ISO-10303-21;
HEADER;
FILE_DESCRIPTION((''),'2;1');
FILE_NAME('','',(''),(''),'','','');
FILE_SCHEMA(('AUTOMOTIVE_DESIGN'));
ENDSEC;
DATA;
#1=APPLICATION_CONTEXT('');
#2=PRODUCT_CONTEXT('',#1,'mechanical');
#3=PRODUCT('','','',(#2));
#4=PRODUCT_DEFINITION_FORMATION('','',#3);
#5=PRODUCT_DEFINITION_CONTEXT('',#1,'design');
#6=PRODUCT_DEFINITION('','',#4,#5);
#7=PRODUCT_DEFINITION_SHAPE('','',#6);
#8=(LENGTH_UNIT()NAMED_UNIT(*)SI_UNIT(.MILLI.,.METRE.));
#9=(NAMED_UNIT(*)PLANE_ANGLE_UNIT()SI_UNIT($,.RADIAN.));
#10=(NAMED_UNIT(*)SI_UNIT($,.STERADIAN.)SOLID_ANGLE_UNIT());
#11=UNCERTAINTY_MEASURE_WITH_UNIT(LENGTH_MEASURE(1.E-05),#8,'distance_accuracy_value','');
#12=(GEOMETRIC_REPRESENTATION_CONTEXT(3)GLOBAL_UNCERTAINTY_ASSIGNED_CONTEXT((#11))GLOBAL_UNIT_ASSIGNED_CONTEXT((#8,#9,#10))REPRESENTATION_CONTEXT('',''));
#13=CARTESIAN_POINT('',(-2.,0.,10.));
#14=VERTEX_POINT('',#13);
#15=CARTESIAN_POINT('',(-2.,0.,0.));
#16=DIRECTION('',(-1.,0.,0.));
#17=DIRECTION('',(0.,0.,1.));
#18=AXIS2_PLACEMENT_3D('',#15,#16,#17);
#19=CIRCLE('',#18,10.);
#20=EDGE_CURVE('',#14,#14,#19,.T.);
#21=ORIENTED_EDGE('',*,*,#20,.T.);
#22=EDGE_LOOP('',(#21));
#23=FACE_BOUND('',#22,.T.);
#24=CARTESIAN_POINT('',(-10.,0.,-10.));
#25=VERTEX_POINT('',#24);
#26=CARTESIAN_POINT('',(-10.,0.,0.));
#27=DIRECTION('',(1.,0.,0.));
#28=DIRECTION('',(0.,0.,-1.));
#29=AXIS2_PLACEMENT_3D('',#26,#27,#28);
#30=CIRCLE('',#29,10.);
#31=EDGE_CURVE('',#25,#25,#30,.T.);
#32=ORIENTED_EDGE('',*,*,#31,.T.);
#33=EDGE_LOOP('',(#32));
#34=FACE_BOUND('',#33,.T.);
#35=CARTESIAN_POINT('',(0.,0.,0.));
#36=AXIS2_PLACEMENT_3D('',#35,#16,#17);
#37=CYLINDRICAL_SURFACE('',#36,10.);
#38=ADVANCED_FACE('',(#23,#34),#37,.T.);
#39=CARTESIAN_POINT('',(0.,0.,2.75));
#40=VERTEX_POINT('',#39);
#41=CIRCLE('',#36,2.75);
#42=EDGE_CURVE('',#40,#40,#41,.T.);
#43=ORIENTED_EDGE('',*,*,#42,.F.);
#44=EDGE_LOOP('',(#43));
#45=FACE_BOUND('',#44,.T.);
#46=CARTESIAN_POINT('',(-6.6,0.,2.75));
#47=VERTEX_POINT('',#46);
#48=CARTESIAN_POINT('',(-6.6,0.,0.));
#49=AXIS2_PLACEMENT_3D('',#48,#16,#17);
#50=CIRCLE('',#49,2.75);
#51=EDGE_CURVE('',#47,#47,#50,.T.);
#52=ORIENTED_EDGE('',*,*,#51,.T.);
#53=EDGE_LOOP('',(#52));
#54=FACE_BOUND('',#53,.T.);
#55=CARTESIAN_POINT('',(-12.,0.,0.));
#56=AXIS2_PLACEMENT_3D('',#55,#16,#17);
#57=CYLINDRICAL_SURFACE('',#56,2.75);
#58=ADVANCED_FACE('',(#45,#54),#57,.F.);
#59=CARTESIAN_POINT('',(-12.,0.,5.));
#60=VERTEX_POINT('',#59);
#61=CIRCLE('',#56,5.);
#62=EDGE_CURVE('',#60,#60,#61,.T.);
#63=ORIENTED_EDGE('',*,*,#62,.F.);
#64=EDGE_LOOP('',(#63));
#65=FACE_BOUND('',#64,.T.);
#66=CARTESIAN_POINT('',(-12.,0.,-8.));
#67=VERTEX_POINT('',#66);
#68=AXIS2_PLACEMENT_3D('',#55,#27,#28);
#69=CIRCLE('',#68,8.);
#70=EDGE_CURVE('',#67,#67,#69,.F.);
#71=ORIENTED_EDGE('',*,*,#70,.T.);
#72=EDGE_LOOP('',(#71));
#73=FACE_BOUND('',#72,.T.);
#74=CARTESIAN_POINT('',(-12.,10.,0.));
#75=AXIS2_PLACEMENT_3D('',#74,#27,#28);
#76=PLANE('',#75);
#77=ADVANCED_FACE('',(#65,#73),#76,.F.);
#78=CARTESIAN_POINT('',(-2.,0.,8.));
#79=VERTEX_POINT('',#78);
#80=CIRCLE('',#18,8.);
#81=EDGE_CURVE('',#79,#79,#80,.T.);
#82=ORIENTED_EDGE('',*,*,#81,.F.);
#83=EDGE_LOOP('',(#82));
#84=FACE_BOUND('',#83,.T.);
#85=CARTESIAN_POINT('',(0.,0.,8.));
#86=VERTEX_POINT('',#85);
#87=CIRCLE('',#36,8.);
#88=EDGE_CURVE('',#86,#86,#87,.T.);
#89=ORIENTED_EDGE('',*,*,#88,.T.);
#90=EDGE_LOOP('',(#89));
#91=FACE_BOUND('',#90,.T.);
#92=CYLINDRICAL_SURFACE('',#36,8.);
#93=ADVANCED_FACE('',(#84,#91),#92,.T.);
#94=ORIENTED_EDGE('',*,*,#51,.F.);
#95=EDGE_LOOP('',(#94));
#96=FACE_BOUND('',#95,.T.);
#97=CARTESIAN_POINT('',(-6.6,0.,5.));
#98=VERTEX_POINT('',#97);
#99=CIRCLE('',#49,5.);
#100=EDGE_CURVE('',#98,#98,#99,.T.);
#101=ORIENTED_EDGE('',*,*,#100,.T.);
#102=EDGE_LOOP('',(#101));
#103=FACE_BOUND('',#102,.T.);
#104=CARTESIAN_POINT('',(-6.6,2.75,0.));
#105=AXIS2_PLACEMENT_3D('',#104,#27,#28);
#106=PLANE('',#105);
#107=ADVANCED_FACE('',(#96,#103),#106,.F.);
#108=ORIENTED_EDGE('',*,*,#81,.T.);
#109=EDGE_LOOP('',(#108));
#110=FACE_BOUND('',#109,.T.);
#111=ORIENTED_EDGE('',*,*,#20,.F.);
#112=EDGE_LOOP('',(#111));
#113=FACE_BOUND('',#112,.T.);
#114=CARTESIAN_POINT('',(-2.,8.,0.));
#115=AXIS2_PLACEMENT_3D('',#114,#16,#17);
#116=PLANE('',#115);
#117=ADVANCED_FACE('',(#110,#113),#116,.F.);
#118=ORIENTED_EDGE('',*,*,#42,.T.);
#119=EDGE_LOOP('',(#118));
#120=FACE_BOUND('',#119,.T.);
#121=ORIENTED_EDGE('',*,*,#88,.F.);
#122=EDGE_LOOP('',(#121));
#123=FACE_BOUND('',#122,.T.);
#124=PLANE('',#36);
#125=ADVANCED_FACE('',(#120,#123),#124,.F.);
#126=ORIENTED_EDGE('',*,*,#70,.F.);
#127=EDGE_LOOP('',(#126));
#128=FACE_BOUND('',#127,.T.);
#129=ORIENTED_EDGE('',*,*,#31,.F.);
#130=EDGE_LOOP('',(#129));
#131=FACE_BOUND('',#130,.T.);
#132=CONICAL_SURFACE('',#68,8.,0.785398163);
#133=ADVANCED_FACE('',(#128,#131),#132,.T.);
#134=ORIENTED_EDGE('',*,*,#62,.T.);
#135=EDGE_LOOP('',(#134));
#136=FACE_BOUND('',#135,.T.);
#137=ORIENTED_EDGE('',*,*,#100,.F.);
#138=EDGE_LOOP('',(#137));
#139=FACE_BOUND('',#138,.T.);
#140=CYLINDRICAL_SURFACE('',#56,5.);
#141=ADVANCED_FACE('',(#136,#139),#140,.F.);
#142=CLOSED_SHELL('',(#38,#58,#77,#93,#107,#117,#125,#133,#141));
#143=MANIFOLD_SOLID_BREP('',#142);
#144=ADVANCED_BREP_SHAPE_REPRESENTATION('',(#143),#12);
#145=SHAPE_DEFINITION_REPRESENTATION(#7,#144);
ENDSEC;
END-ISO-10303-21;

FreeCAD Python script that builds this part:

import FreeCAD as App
import Part
import Sketcher
from FreeCAD import Vector
Q = App.Units.Quantity


def edges_at(feature, points):
    """Names of the edges that pass closest to the given points."""
    edges = feature.Shape.Edges
    near = lambda p: min(range(len(edges)), key=lambda i: edges[i].distToShape(Part.Vertex(*p))[0])
    return sorted({f"Edge{near(p) + 1}" for p in points})


def add_polygon(sketch, points):
    """Adds a closed chain of lines whose ends are joined by coincident constraints."""
    first, n = sketch.GeometryCount, len(points)
    for a, b in zip(points, points[1:] + points[:1]):
        sketch.addGeometry(Part.LineSegment(App.Vector(*a, 0), App.Vector(*b, 0)), False)
    for i in range(n):
        sketch.addConstraint(Sketcher.Constraint("Coincident", first + i, 2, first + (i + 1) % n, 1))

doc = App.newDocument("Part")
body = doc.addObject("PartDesign::Body", "Body")

sketch1 = body.newObject("Sketcher::SketchObject", "Sketch")
sketch1.AttachmentSupport = (doc.getObject("XY_Plane"), [""])
sketch1.MapMode = "FlatFace"
add_polygon(sketch1, [(0, 0), (0, 8), (-2, 8), (-2, 10), (-12, 10), (-12, 0)])
sketch1.addConstraint([
    Sketcher.Constraint("Vertical", 0),
    Sketcher.Constraint("Horizontal", 1),
    Sketcher.Constraint("Vertical", 2),
    Sketcher.Constraint("Horizontal", 3),
    Sketcher.Constraint("Vertical", 4),
    Sketcher.Constraint("Horizontal", 5),
    Sketcher.Constraint("Coincident", 5, 2, -1, 1),
    Sketcher.Constraint("Equal", 1, 2),
    Sketcher.Constraint("Equal", 3, 4),
    Sketcher.Constraint("DistanceX", 1, 2, 1, 1, Q("2 mm")),
    Sketcher.Constraint("DistanceX", 3, 2, 3, 1, Q("10 mm")),
])
revolution = body.newObject("PartDesign::Revolution", "Revolution")
revolution.Profile = sketch1
revolution.ReferenceAxis = (sketch1, ["H_Axis"])
revolution.Angle = 360
doc.recompute()

chamfer = body.newObject("PartDesign::Chamfer", "Chamfer")
chamfer.Base = (revolution, edges_at(revolution, [(-12, 0, -10)]))
chamfer.Size = 2

sketch2 = body.newObject("Sketcher::SketchObject", "Sketch001")
sketch2.AttachmentSupport = (doc.getObject("YZ_Plane"), [""])
sketch2.MapMode = "FlatFace"
sketch2.AttachmentOffset = App.Placement(Vector(0, 0, -12), App.Rotation())
sketch2.addGeometry(Part.Circle(Vector(0, 0, 0), Vector(0, 0, 1), 2.8), False)
sketch2.addConstraint([
    Sketcher.Constraint("Coincident", 0, 3, -1, 1),
    Sketcher.Constraint("Diameter", 0, Q("5.5 mm")),
])
doc.recompute()
hole = body.newObject("PartDesign::Hole", "Hole")
hole.Profile = sketch2
hole.ThreadType = "None"
hole.Diameter = 5.5
hole.DepthType = "Dimension"
hole.Depth = 12
hole.DrillPoint = "Angled"
hole.DrillPointAngle = 118
hole.HoleCutType = "Counterbore"
hole.HoleCutDiameter = 10
hole.HoleCutDepth = 5.4
hole.Reversed = True

doc.recompute()
